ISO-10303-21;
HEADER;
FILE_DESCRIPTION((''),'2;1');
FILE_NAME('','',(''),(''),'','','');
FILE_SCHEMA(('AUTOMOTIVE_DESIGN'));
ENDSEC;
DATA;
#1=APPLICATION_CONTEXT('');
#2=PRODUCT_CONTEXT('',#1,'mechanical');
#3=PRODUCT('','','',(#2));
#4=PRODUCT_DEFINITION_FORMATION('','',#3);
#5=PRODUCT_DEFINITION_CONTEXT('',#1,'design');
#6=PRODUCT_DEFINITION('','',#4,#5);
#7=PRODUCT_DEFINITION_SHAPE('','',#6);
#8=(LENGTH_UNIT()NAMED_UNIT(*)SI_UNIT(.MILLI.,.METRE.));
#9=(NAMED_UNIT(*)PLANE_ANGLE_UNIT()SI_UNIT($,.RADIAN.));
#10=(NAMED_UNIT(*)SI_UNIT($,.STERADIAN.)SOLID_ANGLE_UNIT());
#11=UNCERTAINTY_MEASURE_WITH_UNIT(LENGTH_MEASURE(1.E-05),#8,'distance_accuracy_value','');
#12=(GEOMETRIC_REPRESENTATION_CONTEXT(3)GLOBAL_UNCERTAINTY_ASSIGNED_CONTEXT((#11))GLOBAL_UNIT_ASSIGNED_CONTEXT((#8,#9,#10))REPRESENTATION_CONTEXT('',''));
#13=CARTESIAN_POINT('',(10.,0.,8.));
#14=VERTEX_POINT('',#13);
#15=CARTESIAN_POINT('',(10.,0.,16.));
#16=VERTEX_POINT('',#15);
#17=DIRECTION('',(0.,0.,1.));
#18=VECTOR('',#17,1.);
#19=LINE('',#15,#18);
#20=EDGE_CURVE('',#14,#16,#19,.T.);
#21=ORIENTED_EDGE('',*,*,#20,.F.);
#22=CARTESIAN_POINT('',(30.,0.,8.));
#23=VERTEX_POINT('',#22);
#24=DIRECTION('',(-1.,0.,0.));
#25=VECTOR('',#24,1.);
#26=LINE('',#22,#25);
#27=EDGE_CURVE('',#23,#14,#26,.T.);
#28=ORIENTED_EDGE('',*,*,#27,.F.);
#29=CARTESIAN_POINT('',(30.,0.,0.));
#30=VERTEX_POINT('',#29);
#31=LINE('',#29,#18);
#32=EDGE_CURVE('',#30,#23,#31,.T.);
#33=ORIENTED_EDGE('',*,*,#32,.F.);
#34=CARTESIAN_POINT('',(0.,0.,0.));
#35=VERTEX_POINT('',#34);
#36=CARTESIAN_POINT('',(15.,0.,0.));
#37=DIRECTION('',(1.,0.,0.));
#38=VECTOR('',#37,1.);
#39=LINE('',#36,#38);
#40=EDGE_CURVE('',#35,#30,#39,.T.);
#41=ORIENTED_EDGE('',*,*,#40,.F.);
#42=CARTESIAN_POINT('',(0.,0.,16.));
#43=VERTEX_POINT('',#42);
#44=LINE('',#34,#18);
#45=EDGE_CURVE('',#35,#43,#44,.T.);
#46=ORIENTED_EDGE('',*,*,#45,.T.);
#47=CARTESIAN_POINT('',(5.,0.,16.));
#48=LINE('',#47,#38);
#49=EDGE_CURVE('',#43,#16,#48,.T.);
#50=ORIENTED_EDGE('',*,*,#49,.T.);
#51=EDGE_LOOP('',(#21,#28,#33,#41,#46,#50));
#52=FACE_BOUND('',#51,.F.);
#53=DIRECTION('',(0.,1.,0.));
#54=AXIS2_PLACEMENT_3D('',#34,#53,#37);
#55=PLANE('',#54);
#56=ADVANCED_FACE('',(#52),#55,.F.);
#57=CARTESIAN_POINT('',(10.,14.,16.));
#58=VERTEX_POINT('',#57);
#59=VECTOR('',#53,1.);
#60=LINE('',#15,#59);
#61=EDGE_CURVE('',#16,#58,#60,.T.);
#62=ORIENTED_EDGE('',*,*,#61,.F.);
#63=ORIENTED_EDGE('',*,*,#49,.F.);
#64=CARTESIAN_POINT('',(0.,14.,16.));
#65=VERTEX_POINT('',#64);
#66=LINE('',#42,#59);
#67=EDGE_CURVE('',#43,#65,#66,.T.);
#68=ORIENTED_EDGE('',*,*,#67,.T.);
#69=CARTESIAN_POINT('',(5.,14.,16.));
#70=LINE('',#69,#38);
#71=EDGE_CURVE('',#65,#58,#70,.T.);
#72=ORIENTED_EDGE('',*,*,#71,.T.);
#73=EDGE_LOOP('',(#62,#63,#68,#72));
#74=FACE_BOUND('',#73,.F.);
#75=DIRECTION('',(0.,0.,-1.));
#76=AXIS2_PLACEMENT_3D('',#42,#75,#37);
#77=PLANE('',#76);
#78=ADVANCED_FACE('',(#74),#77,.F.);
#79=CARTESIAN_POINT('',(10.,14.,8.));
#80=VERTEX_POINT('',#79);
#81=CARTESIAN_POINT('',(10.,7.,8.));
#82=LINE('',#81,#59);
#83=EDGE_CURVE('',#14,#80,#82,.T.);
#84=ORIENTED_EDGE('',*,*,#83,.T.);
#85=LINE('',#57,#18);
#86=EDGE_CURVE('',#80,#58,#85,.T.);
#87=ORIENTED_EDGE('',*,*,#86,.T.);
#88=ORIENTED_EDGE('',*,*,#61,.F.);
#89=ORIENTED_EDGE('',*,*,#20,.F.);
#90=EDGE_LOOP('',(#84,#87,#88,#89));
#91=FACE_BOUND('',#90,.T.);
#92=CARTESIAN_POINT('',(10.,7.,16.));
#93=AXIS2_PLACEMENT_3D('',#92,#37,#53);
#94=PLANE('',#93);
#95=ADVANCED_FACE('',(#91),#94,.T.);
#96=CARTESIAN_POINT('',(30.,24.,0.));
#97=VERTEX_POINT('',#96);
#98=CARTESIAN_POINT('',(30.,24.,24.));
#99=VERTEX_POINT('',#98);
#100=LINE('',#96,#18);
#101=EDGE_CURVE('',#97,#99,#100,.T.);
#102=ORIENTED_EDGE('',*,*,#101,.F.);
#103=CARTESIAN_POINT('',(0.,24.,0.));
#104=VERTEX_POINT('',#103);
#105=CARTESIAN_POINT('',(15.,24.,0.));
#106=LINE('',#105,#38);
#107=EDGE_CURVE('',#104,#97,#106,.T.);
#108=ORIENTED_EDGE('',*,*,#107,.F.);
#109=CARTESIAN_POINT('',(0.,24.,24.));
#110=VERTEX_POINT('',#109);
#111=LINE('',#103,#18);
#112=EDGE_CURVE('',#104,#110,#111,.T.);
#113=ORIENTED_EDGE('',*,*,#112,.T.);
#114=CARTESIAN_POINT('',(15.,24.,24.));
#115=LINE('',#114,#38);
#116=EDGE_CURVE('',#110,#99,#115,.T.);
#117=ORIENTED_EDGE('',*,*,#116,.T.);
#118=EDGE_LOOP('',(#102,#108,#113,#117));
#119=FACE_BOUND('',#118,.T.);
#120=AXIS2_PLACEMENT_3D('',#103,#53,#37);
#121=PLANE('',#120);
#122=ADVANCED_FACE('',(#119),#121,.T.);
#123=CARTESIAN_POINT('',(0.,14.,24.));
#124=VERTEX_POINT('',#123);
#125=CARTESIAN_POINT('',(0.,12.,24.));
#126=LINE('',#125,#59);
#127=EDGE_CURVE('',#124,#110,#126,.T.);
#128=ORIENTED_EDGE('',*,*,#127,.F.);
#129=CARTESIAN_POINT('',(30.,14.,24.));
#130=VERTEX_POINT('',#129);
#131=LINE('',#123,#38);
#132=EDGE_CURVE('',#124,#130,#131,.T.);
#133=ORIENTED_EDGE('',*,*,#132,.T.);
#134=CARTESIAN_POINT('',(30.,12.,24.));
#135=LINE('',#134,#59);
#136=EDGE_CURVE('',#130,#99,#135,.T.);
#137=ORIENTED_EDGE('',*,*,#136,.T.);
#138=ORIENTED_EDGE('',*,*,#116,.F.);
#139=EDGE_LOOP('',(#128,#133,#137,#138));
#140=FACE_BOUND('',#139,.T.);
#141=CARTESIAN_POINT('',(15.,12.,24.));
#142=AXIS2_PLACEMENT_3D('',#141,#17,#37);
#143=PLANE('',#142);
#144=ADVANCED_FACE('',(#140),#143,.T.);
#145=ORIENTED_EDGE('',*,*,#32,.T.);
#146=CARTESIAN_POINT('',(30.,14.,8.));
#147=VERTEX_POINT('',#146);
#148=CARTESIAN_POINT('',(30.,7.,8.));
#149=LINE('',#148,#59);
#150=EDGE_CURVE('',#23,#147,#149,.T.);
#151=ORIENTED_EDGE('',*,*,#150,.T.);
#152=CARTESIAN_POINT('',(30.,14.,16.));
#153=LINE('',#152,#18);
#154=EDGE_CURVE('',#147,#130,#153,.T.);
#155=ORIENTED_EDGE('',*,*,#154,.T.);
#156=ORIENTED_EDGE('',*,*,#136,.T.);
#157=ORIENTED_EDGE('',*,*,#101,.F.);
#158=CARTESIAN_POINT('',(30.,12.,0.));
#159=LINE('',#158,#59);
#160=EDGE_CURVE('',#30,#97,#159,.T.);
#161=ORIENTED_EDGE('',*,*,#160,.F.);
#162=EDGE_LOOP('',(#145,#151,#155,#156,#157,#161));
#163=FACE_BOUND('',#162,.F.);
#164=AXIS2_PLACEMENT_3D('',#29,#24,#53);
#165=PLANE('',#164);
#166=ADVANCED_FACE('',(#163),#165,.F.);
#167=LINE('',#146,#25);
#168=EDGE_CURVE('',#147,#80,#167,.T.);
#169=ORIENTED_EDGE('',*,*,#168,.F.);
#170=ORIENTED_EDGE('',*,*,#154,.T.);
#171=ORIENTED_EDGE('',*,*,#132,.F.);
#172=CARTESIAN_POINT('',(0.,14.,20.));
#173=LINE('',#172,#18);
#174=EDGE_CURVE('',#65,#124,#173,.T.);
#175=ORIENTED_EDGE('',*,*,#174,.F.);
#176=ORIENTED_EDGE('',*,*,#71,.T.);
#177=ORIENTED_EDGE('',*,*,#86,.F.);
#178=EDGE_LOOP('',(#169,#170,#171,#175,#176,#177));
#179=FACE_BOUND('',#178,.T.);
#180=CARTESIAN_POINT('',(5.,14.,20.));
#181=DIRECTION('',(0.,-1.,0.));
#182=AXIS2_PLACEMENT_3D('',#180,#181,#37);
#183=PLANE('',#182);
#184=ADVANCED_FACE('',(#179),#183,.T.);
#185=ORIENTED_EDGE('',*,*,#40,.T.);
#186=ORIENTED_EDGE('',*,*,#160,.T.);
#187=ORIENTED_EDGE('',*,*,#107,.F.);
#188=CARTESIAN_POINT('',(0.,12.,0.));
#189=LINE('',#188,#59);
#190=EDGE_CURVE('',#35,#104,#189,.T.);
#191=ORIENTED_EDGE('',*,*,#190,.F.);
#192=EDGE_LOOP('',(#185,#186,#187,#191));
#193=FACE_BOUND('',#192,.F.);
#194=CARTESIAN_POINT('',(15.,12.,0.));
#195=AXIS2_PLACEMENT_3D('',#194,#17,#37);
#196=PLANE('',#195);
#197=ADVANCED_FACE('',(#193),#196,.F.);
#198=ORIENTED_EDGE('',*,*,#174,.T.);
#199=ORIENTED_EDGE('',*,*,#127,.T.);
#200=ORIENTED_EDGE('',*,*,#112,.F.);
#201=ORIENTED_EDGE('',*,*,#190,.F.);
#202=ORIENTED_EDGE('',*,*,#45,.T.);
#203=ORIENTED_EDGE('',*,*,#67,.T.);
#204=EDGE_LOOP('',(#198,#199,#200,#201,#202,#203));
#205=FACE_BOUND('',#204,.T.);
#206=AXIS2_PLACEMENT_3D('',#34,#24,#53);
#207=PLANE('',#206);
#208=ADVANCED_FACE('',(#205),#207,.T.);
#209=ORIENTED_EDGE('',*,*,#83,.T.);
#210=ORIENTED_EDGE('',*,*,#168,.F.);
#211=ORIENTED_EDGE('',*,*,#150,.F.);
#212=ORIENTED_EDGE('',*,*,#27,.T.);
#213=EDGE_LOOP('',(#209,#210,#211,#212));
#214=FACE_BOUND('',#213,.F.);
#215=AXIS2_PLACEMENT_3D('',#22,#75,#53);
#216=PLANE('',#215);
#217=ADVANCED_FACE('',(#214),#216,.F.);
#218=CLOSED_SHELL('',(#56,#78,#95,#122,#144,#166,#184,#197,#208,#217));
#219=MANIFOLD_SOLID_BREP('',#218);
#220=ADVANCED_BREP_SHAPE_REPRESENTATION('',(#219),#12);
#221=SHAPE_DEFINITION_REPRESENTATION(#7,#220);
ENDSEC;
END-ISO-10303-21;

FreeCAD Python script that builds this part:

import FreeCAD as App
import Part
import Sketcher


def add_polygon(sketch, points):
    """Adds a closed chain of lines whose ends are joined by coincident constraints."""
    first, n = sketch.GeometryCount, len(points)
    for a, b in zip(points, points[1:] + points[:1]):
        sketch.addGeometry(Part.LineSegment(App.Vector(*a, 0), App.Vector(*b, 0)), False)
    for i in range(n):
        sketch.addConstraint(Sketcher.Constraint("Coincident", first + i, 2, first + (i + 1) % n, 1))

doc = App.newDocument("Part")
body = doc.addObject("PartDesign::Body", "Body")

# Sketch on XY plane
sketch1 = body.newObject("Sketcher::SketchObject", "Sketch")
sketch1.AttachmentSupport = (doc.getObject("XY_Plane"), [""])
sketch1.MapMode = "FlatFace"
add_polygon(sketch1, [(0, 24), (0, 0), (30, 0), (30, 24)])  # lines 0-3
sketch1.addConstraint([
    Sketcher.Constraint("Vertical", 0),
    Sketcher.Constraint("Horizontal", 1),
    Sketcher.Constraint("Vertical", 2),
    Sketcher.Constraint("Horizontal", 3),
    Sketcher.Constraint("Coincident", 0, 2, -1, 1),
    Sketcher.Constraint("DistanceX", 1, 1, 1, 2, 30.0),
    Sketcher.Constraint("DistanceY", 0, 2, 0, 1, 24.0),
])
pad1 = body.newObject("PartDesign::Pad", "Pad")
pad1.Profile = sketch1
pad1.Length = 24

# Sketch on YZ plane
sketch2 = body.newObject("Sketcher::SketchObject", "Sketch001")
sketch2.AttachmentSupport = (doc.getObject("YZ_Plane"), [""])
sketch2.MapMode = "FlatFace"
sketch2.AttachmentOffset = App.Placement(App.Vector(0, 0, 30), App.Rotation())
add_polygon(sketch2, [(0, 24), (0, 8), (14, 8), (14, 24)])  # lines 0-3
sketch2.addConstraint([
    Sketcher.Constraint("Vertical", 0),
    Sketcher.Constraint("Horizontal", 1),
    Sketcher.Constraint("Vertical", 2),
    Sketcher.Constraint("Horizontal", 3),
    Sketcher.Constraint("PointOnObject", 0, 2, -2),
    Sketcher.Constraint("DistanceX", 1, 1, 1, 2, 14.0),
    Sketcher.Constraint("DistanceY", 0, 2, 0, 1, 16.0),
    Sketcher.Constraint("DistanceY", -1, 1, 0, 2, 8.0),
])
pocket1 = body.newObject("PartDesign::Pocket", "Pocket")
pocket1.Profile = sketch2
pocket1.Length = 20

# Sketch on XZ plane
sketch3 = body.newObject("Sketcher::SketchObject", "Sketch002")
sketch3.AttachmentSupport = (doc.getObject("XZ_Plane"), [""])
sketch3.MapMode = "FlatFace"
add_polygon(sketch3, [(0, 24), (0, 16), (10, 16), (10, 24)])  # lines 0-3
sketch3.addConstraint([
    Sketcher.Constraint("Vertical", 0),
    Sketcher.Constraint("Horizontal", 1),
    Sketcher.Constraint("Vertical", 2),
    Sketcher.Constraint("Horizontal", 3),
    Sketcher.Constraint("PointOnObject", 0, 2, -2),
    Sketcher.Constraint("DistanceX", 1, 1, 1, 2, 10.0),
    Sketcher.Constraint("DistanceY", 0, 2, 0, 1, 8.0),
    Sketcher.Constraint("DistanceY", -1, 1, 0, 2, 16.0),
])
pocket2 = body.newObject("PartDesign::Pocket", "Pocket001")
pocket2.Profile = sketch3
pocket2.Length = 14

doc.recompute()
